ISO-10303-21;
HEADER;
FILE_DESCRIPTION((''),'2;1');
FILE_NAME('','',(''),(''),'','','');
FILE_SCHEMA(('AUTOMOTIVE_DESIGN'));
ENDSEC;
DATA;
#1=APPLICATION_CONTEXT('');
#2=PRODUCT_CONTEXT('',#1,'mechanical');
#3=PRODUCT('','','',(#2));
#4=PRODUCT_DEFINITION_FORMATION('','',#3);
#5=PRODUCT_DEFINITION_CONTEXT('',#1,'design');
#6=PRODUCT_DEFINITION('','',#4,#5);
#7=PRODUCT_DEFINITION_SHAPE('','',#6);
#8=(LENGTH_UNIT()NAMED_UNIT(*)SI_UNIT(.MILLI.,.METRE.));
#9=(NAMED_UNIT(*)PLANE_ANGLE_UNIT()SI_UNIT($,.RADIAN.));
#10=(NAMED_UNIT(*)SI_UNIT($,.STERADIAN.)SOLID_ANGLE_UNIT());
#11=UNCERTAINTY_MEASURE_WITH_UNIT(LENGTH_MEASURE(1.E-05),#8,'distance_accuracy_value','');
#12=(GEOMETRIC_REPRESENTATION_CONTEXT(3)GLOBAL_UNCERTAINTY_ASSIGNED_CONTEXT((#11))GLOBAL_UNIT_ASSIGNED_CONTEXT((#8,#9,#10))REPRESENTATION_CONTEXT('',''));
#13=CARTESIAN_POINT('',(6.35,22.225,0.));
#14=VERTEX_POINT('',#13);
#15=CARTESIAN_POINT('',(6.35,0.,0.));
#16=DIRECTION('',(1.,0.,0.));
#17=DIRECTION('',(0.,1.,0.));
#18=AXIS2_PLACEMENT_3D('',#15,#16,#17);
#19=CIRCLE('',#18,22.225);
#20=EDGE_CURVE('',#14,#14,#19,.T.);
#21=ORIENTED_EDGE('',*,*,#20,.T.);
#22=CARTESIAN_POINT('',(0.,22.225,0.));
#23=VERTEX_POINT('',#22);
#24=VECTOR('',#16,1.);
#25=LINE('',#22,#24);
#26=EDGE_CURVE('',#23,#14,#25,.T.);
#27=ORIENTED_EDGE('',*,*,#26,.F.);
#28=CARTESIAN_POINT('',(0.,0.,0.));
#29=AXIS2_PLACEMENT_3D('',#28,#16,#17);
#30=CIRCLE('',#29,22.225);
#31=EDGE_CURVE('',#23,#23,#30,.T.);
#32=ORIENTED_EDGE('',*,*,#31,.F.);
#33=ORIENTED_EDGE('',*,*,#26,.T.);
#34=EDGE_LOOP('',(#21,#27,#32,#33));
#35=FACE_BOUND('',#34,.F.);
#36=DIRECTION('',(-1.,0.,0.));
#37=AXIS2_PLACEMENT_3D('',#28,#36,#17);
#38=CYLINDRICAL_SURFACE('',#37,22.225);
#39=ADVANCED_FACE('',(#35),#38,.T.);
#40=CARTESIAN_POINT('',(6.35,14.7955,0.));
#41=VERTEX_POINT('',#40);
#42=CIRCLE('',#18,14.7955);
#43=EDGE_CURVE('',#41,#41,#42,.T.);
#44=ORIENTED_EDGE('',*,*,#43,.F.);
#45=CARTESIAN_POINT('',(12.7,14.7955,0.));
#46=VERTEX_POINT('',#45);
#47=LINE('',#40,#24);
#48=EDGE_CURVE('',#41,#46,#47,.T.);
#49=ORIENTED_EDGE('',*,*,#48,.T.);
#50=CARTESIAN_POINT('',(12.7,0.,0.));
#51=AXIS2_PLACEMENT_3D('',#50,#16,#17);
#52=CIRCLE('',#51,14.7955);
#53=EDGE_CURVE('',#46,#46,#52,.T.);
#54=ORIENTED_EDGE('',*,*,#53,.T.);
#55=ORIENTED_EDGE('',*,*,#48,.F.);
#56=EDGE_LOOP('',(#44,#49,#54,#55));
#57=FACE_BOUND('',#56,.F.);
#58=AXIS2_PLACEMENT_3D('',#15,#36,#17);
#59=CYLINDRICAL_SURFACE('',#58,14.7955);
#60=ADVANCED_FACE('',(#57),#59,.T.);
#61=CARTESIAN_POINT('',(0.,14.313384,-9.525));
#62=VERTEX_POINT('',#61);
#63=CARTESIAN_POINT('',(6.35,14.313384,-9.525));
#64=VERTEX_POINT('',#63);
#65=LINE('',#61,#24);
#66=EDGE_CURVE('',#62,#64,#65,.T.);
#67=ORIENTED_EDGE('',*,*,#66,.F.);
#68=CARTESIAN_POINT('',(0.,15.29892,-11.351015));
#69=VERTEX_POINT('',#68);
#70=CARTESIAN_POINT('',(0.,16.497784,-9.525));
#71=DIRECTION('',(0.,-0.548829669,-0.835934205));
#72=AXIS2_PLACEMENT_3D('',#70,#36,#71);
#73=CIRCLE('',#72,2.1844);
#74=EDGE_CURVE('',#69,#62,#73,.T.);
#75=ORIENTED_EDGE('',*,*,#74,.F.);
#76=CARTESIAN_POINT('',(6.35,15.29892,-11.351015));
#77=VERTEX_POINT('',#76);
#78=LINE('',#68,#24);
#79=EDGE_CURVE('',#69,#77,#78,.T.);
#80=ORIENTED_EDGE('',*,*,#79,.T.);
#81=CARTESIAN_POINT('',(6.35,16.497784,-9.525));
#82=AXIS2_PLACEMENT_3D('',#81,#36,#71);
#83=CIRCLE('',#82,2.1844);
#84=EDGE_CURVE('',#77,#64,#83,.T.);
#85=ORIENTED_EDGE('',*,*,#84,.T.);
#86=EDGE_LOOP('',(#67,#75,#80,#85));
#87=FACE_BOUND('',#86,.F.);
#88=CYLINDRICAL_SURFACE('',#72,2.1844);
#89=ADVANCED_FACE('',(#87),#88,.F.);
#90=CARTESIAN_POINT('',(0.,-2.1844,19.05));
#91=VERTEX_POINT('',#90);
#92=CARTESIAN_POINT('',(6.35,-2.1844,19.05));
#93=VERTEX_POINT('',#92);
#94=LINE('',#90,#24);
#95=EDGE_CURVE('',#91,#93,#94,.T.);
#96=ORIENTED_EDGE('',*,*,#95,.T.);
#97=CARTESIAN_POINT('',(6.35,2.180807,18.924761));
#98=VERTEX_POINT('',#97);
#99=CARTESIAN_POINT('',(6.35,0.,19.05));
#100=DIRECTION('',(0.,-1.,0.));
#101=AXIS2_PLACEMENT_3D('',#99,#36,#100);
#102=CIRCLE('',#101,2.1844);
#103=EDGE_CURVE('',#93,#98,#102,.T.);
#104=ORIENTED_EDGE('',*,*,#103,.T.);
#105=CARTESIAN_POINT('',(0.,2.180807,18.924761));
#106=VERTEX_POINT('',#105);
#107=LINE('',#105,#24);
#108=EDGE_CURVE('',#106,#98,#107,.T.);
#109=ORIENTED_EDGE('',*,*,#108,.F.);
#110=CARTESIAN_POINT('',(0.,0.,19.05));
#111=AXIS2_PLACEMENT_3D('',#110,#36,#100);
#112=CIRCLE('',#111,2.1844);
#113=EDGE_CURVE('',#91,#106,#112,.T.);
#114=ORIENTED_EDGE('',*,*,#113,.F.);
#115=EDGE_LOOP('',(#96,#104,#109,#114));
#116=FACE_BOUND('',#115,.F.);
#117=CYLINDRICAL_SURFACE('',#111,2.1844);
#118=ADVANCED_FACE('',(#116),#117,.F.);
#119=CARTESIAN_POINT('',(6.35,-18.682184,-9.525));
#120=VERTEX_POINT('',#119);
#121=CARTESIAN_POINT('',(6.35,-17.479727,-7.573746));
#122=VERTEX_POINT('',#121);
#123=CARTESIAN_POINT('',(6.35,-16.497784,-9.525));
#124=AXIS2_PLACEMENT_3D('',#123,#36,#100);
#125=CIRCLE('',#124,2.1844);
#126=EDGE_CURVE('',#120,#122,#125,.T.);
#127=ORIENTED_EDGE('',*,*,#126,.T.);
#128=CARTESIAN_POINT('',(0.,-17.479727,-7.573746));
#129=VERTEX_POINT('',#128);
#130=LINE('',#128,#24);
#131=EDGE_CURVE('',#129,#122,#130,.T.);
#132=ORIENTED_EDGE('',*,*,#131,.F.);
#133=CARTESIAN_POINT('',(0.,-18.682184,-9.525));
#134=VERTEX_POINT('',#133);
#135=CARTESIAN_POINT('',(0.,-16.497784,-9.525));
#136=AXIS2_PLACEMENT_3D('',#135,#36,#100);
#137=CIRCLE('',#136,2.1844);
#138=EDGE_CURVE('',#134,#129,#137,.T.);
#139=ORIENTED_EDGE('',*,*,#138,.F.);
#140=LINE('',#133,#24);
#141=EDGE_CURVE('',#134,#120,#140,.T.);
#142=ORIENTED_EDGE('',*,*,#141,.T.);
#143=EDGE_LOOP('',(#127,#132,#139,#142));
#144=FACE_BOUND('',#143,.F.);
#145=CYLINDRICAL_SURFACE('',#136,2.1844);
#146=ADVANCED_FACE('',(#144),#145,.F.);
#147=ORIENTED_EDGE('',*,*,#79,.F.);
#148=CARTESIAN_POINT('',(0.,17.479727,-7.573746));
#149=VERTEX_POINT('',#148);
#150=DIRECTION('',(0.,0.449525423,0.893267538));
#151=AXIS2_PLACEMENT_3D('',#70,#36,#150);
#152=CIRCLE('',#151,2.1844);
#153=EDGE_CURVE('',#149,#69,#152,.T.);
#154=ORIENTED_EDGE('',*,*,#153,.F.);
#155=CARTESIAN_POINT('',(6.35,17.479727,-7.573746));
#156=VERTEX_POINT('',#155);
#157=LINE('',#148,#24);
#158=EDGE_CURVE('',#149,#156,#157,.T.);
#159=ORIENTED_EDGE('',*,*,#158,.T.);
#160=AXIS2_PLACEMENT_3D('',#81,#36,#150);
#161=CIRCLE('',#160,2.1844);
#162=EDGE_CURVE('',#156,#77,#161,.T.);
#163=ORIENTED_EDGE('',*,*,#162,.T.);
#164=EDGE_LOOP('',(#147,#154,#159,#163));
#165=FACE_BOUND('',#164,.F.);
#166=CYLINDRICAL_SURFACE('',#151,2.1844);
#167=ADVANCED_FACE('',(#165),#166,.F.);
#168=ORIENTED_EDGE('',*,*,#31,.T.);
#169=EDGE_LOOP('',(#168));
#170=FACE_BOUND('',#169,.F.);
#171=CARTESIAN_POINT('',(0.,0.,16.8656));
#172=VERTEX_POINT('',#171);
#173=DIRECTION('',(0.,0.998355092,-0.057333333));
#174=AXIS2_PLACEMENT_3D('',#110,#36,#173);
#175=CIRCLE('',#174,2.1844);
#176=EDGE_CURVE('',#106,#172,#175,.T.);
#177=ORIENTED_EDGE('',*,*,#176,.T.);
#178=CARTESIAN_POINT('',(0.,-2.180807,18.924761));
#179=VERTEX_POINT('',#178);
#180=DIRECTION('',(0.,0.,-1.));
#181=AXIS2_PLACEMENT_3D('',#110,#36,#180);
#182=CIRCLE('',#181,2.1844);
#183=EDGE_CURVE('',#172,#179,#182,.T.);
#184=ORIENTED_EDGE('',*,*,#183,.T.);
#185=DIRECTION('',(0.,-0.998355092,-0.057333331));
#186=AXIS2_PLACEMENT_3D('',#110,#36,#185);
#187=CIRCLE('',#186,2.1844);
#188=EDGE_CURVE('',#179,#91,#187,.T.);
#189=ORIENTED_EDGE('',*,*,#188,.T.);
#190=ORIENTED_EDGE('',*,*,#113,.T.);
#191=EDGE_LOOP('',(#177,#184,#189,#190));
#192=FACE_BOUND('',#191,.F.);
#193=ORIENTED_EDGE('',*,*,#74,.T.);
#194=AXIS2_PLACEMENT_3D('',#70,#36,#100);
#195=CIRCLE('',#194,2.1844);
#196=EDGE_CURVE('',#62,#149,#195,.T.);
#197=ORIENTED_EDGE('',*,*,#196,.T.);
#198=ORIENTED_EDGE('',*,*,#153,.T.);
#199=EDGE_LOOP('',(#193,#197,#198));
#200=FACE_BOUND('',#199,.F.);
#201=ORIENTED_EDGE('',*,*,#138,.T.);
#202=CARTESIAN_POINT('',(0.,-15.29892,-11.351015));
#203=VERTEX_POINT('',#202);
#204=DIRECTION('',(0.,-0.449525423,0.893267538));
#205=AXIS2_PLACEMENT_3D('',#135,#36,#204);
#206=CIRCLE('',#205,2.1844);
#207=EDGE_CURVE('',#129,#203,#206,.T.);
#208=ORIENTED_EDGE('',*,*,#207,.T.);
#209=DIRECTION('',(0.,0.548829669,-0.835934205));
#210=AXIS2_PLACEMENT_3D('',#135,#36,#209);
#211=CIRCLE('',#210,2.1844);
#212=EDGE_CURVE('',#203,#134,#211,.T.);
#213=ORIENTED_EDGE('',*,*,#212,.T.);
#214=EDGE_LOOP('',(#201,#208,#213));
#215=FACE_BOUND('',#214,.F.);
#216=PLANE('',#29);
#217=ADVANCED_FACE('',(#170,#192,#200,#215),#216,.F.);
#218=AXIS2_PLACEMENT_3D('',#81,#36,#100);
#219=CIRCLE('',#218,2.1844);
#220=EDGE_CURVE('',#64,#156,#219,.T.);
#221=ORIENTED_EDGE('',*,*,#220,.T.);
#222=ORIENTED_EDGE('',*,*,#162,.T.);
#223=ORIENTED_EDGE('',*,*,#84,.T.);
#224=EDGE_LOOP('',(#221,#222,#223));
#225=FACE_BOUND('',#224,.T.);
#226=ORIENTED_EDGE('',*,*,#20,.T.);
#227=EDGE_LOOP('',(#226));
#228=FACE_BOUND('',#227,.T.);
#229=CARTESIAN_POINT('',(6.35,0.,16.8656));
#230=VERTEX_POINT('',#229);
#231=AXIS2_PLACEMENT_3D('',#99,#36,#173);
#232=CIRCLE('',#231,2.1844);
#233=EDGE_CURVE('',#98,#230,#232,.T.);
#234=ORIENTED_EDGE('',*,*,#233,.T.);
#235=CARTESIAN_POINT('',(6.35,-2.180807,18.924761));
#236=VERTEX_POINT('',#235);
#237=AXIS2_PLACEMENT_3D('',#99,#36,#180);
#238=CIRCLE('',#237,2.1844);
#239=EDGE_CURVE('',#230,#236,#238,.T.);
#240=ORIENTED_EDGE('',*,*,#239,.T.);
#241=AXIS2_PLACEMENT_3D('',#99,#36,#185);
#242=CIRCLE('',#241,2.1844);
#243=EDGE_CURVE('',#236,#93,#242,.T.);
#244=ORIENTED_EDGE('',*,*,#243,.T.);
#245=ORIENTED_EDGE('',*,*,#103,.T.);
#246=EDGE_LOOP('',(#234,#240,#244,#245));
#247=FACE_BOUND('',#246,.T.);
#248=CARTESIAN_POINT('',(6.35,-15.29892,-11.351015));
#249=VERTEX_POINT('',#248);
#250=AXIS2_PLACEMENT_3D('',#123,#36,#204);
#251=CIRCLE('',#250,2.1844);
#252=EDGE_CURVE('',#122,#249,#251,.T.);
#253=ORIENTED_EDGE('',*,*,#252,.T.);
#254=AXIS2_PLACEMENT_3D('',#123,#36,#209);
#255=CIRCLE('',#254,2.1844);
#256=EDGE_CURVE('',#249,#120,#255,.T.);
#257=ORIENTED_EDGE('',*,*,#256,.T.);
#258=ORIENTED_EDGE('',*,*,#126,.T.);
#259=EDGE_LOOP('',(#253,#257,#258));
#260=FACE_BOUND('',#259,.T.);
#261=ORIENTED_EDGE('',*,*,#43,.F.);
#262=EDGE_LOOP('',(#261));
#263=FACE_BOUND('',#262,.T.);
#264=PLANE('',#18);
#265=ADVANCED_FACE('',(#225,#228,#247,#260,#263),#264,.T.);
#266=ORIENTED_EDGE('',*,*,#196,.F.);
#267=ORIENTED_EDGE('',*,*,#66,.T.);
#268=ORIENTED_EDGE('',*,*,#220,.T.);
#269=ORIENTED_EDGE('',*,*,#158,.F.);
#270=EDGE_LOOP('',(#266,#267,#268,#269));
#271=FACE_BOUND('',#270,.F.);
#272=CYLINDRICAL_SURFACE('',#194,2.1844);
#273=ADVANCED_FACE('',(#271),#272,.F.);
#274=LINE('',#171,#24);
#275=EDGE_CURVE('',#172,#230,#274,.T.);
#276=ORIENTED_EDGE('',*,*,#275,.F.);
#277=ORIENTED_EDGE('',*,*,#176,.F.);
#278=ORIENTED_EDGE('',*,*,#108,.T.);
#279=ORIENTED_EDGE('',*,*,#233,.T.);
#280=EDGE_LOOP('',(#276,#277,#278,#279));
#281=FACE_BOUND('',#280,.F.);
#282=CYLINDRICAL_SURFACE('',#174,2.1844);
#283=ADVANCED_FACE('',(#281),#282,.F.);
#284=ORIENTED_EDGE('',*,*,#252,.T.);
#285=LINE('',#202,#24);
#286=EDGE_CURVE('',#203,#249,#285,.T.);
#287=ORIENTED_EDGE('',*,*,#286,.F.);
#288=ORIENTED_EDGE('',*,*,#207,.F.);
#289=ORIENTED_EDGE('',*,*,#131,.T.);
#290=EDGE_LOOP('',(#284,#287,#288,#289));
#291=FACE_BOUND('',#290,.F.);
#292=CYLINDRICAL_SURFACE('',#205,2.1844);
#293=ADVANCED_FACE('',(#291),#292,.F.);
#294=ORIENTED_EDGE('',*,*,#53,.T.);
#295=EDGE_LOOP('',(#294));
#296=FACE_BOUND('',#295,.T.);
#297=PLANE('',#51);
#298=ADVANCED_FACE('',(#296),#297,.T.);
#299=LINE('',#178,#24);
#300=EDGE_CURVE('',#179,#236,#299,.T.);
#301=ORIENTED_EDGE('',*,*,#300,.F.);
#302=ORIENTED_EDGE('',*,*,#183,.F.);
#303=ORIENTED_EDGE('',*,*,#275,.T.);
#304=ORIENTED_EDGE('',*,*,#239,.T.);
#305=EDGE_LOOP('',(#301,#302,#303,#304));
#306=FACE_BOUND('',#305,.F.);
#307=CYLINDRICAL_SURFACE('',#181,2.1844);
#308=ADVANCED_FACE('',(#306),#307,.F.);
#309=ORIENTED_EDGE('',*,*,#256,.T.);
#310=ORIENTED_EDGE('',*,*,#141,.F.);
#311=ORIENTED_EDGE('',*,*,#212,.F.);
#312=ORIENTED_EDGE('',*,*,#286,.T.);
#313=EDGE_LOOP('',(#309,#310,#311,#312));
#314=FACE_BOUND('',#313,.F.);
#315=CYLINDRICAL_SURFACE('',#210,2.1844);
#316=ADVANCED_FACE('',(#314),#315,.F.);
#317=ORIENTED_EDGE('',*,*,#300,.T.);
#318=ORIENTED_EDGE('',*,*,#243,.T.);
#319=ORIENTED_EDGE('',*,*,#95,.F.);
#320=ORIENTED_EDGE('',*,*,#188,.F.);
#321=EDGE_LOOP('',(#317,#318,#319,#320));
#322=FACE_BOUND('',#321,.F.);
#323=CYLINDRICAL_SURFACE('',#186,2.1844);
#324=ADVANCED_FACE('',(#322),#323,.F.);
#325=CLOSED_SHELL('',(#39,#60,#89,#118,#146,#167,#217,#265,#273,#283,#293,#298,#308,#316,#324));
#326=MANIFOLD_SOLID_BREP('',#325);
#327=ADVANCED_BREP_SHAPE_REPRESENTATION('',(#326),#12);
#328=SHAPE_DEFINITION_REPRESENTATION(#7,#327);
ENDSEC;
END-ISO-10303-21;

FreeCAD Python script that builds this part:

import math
import FreeCAD as App
import Part
import Sketcher

V = App.Vector
Q = App.Units.Quantity

doc = App.newDocument("Part")
body = doc.addObject("PartDesign::Body", "Body")

# Sketch on YZ plane
sketch1 = doc.addObject("Sketcher::SketchObject", "Sketch")
body.addObject(sketch1)
sketch1.AttachmentSupport = (doc.YZ_Plane, [""])
sketch1.MapMode = "FlatFace"
sketch1.addGeometry(Part.Circle(V(0, 0, 0), V(0, 0, 1), 22), False)
sketch1.addConstraint(Sketcher.Constraint("Coincident", 0, 3, -1, 1))
sketch1.addConstraint(Sketcher.Constraint("Diameter", 0, Q("1.75 in")))
pad1 = doc.addObject("PartDesign::Pad", "Pad")
body.addObject(pad1)
pad1.Profile = sketch1
pad1.Length = Q("0.25 in")

# Sketch on YZ plane
sketch2 = doc.addObject("Sketcher::SketchObject", "Sketch001")
body.addObject(sketch2)
sketch2.AttachmentSupport = (doc.YZ_Plane, [""])
sketch2.MapMode = "FlatFace"
sketch2.AttachmentOffset = App.Placement(V(0, 0, 0.25 * 25.4), App.Rotation())
sketch2.addGeometry(Part.Circle(V(0, 0, 0), V(0, 0, 1), 15), False)
sketch2.addConstraint(Sketcher.Constraint("Coincident", 0, 3, -1, 1))
sketch2.addConstraint(Sketcher.Constraint("Diameter", 0, Q("1.165 in")))
pad2 = doc.addObject("PartDesign::Pad", "Pad001")
body.addObject(pad2)
pad2.Profile = sketch2
pad2.Length = Q("0.25 in")

# Sketch on YZ plane
sketch3 = doc.addObject("Sketcher::SketchObject", "Sketch002")
body.addObject(sketch3)
sketch3.AttachmentSupport = (doc.YZ_Plane, [""])
sketch3.MapMode = "FlatFace"
sketch3.addGeometry(Part.ArcOfCircle(Part.Circle(V(16.5, -9.53, 0), V(0, 0, 1), 2.18), math.radians(180), math.radians(237)), False)
sketch3.addGeometry(Part.ArcOfCircle(Part.Circle(V(16.5, -9.53, 0), V(0, 0, 1), 2.18), math.radians(63), math.radians(180)), False)
sketch3.addGeometry(Part.ArcOfCircle(Part.Circle(V(16.5, -9.53, 0), V(0, 0, 1), 2.18), math.radians(-123), math.radians(63)), False)
sketch3.addGeometry(Part.ArcOfCircle(Part.Circle(V(-16.5, -9.53, 0), V(0, 0, 1), 2.18), math.radians(-57), math.radians(117)), False)
sketch3.addGeometry(Part.ArcOfCircle(Part.Circle(V(-16.5, -9.53, 0), V(0, 0, 1), 2.18), math.radians(180), math.radians(303)), False)
sketch3.addGeometry(Part.ArcOfCircle(Part.Circle(V(-16.5, -9.53, 0), V(0, 0, 1), 2.18), math.radians(117), math.radians(180)), False)
sketch3.addGeometry(Part.ArcOfCircle(Part.Circle(V(0, 19.05, 0), V(0, 0, 1), 2.18), math.radians(-180), math.radians(-176.71)), False)
sketch3.addGeometry(Part.ArcOfCircle(Part.Circle(V(0, 19.05, 0), V(0, 0, 1), 2.18), math.radians(-3), math.radians(180)), False)
sketch3.addGeometry(Part.ArcOfCircle(Part.Circle(V(0, 19.05, 0), V(0, 0, 1), 2.18), math.radians(-90), math.radians(-3)), False)
sketch3.addGeometry(Part.ArcOfCircle(Part.Circle(V(0, 19.05, 0), V(0, 0, 1), 2.18), math.radians(-177), math.radians(-90)), False)
sketch3.addConstraint(Sketcher.Constraint("Tangent", 0, 1, 1, 2))
sketch3.addConstraint(Sketcher.Constraint("Tangent", 1, 1, 2, 2))
sketch3.addConstraint(Sketcher.Constraint("Tangent", 2, 1, 0, 2))
sketch3.addConstraint(Sketcher.Constraint("Tangent", 3, 1, 4, 2))
sketch3.addConstraint(Sketcher.Constraint("Tangent", 4, 1, 5, 2))
sketch3.addConstraint(Sketcher.Constraint("Tangent", 5, 1, 3, 2))
sketch3.addConstraint(Sketcher.Constraint("Tangent", 6, 1, 7, 2))
sketch3.addConstraint(Sketcher.Constraint("Tangent", 7, 1, 8, 2))
sketch3.addConstraint(Sketcher.Constraint("Tangent", 8, 1, 9, 2))
sketch3.addConstraint(Sketcher.Constraint("Tangent", 9, 1, 6, 2))
sketch3.addConstraint(Sketcher.Constraint("Equal", 2, 3))
sketch3.addConstraint(Sketcher.Constraint("Equal", 5, 6))
sketch3.addConstraint(Sketcher.Constraint("Equal", 6, 7))
sketch3.addConstraint(Sketcher.Constraint("Symmetric", 0, 3, 3, 3, -2))
sketch3.addConstraint(Sketcher.Constraint("Symmetric", 7, 1, 9, 1, -2))
sketch3.addConstraint(Sketcher.Constraint("PointOnObject", 8, 1, -2))
sketch3.addConstraint(Sketcher.Constraint("Horizontal", 5, 3, 0, 1))
sketch3.addConstraint(Sketcher.Constraint("Horizontal", 2, 1, 3, 1))
sketch3.addConstraint(Sketcher.Constraint("Horizontal", 0, 1, 4, 1))
sketch3.addConstraint(Sketcher.Constraint("Horizontal", 1, 1, 5, 1))
sketch3.addConstraint(Sketcher.Constraint("Horizontal", 9, 3, 6, 1))
sketch3.addConstraint(Sketcher.Constraint("Radius", 0, Q("0.086 in")))
sketch3.addConstraint(Sketcher.Constraint("DistanceY", -1, 1, 6, 3, Q("0.75 in")))
sketch3.addConstraint(Sketcher.Constraint("DistanceY", 0, 3, -1, 1, Q("0.375 in")))
sketch3.addConstraint(Sketcher.Constraint("DistanceX", -1, 1, 2, 1, 15.29892))
sketch3.addConstraint(Sketcher.Constraint("DistanceY", -1, 1, 7, 1, 18.924761))
sketch3.addConstraint(Sketcher.Constraint("DistanceY", 2, 1, 1, 1, 3.777268))
sketch3.addConstraint(Sketcher.Constraint("DistanceX", -1, 1, 0, 3, 16.497784))
pocket1 = doc.addObject("PartDesign::Pocket", "Pocket")
body.addObject(pocket1)
pocket1.Profile = sketch3
pocket1.Length = Q("1 in")
pocket1.Reversed = True

doc.recompute()
